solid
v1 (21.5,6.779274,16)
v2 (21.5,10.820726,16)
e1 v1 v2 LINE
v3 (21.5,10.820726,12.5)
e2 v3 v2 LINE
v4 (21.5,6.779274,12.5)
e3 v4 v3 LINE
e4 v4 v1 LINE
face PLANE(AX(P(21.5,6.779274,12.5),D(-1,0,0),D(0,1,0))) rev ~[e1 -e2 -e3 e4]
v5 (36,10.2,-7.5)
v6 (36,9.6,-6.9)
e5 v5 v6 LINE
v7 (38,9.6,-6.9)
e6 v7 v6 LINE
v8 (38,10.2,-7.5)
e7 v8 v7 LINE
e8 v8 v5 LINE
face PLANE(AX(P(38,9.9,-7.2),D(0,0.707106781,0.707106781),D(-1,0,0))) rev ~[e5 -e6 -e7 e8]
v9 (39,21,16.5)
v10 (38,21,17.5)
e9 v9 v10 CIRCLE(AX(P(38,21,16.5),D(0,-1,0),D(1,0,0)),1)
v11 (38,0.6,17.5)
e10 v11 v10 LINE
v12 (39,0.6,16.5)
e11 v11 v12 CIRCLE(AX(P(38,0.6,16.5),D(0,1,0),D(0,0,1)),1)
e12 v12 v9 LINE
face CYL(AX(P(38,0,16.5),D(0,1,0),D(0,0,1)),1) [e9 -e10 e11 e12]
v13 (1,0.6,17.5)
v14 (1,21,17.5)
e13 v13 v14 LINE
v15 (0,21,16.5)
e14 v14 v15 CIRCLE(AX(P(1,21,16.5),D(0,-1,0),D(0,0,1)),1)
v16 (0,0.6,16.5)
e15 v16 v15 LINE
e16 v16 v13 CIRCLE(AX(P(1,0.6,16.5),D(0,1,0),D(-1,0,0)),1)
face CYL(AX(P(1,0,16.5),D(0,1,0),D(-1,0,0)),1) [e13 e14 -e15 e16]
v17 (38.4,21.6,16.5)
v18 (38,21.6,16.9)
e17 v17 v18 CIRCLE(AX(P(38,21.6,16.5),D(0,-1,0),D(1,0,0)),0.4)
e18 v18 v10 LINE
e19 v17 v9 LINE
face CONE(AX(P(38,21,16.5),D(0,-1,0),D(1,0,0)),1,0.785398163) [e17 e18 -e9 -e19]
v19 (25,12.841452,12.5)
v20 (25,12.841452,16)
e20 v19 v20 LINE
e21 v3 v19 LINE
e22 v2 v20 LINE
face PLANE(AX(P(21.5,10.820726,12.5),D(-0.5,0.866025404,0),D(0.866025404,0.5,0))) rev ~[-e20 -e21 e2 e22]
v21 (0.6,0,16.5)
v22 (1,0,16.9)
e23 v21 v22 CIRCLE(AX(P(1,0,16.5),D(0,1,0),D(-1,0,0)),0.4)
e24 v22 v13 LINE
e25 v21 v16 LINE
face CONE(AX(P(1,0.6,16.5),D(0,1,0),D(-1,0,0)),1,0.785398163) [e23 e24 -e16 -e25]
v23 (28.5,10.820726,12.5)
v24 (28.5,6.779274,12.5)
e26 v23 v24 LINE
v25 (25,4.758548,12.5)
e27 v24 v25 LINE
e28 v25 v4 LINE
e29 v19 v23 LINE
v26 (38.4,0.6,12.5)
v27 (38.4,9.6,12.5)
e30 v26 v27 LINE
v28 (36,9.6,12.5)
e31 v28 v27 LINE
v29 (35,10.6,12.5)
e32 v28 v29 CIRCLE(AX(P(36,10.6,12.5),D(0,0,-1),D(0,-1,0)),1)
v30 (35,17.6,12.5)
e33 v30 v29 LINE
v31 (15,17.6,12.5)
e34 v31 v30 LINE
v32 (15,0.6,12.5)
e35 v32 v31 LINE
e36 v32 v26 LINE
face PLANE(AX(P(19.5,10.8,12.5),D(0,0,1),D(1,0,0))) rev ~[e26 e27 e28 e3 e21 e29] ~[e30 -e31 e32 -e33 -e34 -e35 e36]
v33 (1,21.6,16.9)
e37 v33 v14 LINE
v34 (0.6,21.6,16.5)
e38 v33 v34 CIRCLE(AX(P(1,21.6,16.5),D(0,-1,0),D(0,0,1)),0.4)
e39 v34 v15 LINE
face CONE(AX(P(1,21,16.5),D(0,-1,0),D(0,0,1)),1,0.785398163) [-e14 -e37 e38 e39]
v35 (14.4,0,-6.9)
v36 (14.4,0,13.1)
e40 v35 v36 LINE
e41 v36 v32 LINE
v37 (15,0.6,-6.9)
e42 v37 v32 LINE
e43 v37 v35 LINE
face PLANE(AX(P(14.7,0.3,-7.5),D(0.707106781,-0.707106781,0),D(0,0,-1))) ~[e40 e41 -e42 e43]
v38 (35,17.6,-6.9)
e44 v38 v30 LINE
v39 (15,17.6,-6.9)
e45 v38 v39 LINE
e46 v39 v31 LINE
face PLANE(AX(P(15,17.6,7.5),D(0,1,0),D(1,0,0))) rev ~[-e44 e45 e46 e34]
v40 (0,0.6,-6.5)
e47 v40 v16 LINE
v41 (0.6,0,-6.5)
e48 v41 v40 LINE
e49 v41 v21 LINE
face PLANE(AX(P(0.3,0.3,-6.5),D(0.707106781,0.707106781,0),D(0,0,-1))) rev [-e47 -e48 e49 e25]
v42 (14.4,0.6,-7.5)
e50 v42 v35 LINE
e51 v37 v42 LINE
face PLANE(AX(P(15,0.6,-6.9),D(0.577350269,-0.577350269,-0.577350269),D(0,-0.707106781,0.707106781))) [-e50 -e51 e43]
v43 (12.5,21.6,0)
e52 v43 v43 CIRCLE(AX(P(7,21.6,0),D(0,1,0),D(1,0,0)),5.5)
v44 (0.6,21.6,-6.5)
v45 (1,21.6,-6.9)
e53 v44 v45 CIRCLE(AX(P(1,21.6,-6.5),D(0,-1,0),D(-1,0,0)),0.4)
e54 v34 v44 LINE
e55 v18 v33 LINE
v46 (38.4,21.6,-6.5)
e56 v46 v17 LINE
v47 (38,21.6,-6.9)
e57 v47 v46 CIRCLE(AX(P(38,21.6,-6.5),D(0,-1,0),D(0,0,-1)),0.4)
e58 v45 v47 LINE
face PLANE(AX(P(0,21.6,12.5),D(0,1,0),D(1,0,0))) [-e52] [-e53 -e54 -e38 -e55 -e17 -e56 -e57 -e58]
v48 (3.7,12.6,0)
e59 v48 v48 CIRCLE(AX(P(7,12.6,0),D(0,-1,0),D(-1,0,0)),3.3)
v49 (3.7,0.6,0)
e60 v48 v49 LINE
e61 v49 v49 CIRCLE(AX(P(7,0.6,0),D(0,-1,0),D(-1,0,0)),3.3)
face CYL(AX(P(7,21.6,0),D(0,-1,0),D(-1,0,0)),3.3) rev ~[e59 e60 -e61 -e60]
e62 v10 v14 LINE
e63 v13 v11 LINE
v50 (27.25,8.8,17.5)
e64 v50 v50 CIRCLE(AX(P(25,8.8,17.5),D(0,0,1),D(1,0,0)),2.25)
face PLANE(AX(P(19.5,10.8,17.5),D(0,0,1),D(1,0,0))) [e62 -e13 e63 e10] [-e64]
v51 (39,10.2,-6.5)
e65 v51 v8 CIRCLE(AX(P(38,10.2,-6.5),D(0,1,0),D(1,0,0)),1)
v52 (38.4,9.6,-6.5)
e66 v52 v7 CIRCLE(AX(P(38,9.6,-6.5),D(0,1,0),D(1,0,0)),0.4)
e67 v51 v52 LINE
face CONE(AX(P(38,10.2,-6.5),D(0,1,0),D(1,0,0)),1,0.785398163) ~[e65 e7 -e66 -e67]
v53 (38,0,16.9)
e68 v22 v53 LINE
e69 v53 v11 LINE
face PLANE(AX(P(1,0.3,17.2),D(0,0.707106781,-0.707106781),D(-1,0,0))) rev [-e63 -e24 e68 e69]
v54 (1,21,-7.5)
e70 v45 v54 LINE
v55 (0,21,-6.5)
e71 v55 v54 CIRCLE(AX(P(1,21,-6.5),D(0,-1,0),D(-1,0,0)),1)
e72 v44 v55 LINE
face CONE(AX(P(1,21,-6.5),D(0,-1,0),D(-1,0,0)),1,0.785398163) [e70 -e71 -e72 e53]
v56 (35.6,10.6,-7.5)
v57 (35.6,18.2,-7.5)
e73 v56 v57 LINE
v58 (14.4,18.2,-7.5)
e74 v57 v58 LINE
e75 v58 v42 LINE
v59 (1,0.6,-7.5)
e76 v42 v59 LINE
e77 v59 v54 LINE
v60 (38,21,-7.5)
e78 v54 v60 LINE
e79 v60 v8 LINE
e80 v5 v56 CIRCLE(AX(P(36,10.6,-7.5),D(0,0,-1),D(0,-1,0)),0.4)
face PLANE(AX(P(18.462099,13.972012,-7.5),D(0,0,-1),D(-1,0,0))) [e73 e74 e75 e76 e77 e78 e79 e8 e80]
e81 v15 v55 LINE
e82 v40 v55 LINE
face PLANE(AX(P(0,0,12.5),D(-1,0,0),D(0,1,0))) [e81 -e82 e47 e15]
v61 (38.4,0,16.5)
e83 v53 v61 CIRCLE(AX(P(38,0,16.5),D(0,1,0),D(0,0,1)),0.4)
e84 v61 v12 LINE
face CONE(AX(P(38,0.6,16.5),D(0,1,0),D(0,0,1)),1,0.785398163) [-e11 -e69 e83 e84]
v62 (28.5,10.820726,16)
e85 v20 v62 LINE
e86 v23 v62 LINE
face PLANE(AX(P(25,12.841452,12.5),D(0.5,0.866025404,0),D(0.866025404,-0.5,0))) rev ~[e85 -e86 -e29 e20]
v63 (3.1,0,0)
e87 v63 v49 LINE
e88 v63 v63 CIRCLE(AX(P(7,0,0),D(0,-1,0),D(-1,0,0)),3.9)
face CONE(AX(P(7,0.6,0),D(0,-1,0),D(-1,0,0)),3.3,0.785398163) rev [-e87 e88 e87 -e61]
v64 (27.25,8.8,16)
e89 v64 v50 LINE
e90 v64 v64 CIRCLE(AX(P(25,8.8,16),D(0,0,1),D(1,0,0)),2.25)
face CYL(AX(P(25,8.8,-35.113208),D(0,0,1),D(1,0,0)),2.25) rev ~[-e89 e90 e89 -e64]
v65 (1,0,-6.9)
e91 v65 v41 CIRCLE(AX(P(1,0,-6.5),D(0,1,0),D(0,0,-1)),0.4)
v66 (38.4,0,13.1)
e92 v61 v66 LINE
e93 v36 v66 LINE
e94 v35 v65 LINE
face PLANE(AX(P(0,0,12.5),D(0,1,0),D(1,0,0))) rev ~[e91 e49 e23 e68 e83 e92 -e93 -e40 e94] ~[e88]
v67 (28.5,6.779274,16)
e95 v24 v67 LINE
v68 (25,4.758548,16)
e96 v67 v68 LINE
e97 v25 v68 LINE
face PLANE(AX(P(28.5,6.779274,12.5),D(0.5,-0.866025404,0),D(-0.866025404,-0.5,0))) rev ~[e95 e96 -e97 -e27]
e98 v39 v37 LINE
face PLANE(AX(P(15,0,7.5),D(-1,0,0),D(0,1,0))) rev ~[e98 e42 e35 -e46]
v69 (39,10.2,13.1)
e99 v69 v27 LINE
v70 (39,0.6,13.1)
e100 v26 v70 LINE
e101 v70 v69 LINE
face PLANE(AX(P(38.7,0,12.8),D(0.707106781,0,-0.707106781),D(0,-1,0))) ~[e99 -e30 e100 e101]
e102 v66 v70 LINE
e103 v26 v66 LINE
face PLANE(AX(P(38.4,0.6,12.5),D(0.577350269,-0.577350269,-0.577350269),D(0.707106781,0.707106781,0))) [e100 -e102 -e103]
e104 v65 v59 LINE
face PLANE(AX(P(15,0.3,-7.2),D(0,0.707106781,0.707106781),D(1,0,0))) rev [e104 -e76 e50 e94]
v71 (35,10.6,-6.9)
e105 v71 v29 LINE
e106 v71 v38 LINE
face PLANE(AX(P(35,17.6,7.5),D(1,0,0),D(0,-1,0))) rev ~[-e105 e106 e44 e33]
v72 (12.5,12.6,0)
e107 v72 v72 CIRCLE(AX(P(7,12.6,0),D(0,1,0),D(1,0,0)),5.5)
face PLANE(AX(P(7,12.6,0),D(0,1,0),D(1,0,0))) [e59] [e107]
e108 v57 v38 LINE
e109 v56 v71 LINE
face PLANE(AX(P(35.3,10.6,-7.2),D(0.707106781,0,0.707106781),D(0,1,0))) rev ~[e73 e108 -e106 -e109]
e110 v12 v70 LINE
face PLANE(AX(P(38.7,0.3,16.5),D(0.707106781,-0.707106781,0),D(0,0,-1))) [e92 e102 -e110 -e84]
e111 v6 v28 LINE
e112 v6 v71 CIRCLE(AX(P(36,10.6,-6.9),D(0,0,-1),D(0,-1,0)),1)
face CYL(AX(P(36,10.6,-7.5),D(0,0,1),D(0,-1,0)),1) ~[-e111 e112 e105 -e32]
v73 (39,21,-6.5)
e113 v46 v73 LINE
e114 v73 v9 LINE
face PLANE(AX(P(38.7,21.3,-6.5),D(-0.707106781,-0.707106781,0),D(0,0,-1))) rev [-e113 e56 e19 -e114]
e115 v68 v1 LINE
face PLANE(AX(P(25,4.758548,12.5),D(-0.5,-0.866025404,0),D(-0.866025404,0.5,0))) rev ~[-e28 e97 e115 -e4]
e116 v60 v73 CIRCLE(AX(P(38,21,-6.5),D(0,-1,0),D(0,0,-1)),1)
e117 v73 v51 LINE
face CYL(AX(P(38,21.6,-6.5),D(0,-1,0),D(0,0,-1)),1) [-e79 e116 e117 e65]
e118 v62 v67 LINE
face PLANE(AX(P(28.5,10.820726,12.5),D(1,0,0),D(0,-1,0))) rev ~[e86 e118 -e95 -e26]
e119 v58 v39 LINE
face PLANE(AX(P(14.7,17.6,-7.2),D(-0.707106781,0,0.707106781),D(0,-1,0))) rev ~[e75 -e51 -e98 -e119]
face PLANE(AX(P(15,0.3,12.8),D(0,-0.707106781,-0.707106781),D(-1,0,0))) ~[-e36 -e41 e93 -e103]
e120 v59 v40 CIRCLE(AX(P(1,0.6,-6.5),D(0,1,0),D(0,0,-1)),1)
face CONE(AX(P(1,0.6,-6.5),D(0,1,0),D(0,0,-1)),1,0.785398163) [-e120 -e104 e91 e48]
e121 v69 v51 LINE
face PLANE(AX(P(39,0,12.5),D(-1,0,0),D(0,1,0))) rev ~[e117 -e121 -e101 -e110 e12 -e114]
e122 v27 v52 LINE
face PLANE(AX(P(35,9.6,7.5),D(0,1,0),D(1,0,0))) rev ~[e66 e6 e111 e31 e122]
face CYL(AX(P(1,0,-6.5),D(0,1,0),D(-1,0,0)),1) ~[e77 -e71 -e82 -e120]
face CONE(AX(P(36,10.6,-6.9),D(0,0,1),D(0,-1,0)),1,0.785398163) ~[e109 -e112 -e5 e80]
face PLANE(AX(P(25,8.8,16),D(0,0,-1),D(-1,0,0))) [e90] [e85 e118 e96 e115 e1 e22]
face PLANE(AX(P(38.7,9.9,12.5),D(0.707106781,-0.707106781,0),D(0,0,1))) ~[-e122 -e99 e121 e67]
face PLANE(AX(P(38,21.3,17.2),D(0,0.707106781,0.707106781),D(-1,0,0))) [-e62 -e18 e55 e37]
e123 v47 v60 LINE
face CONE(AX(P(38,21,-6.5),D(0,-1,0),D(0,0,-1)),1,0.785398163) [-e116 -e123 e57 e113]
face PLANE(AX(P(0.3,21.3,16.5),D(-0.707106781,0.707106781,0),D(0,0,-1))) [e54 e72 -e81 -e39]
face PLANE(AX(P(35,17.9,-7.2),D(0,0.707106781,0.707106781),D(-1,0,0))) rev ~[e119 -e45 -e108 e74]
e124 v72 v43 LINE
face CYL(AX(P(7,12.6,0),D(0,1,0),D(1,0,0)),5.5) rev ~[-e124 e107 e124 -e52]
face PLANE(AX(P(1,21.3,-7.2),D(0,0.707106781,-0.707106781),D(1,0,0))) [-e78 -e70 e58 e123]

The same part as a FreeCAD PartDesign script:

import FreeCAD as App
import Part
import Sketcher
from FreeCAD import Vector
Q = App.Units.Quantity


def edges_at(feature, points):
    """Names of the edges that pass closest to the given points."""
    edges = feature.Shape.Edges
    near = lambda p: min(range(len(edges)), key=lambda i: edges[i].distToShape(Part.Vertex(*p))[0])
    return sorted({f"Edge{near(p) + 1}" for p in points})

doc = App.newDocument("Part")
params = doc.addObject("Spreadsheet::Sheet", "Params")
for row, (alias, value) in enumerate([
    ("sketch1_width", "15 mm"),
    ("sketch1_width2", "20 mm"),
    ("sketch1_width3", "4 mm"),
    ("sketch1_height", "8 mm"),
    ("sketch1_height2", "12 mm"),
    ("pad1_length", "15 mm"),
    ("sketch2_diameter", "6.6 mm"),
    ("hole_diameter", "6.6 mm"),
    ("hole_cbore_diameter", "11 mm"),
    ("hole_cbore_depth", "9 mm"),
    ("sketch3_width", "15 mm"),
    ("sketch3_width2", "20 mm"),
    ("sketch3_width3", "4 mm"),
    ("sketch3_height", "8 mm"),
    ("sketch3_height2", "12 mm"),
    ("pad2_length", "5 mm"),
    ("sketch4_width", "39 mm"),
    ("sketch4_height", "21.6 mm"),
    ("pad3_length", "5 mm"),
    ("pocket1_length", "3.5 mm"),
    ("sketch6_diameter", "4.5 mm"),
    ("hole2_diameter", "4.5 mm"),
    ("fillet_radius", "1 mm"),
    ("chamfer_size", "0.6 mm"),
], start=1):
    params.set(f"A{row}", alias)
    params.set(f"B{row}", "=" + value)
    params.setAlias(f"B{row}", alias)

body = doc.addObject("PartDesign::Body", "Body")

sketch1 = body.newObject("Sketcher::SketchObject", "Sketch")
sketch1.AttachmentSupport = (doc.getObject("XY_Plane"), [""])
sketch1.MapMode = "FlatFace"
sketch1.addGeometry([
    Part.LineSegment(Vector(0, 21.6, 0), Vector(0, 0, 0)),
    Part.LineSegment(Vector(0, 0, 0), Vector(15, 0, 0)),
    Part.LineSegment(Vector(15, 0, 0), Vector(15, 17.6, 0)),
    Part.LineSegment(Vector(15, 17.6, 0), Vector(35, 17.6, 0)),
    Part.LineSegment(Vector(35, 17.6, 0), Vector(35, 9.6, 0)),
    Part.LineSegment(Vector(35, 9.6, 0), Vector(39, 9.6, 0)),
    Part.LineSegment(Vector(39, 9.6, 0), Vector(39, 21.6, 0)),
    Part.LineSegment(Vector(39, 21.6, 0), Vector(0, 21.6, 0)),
], False)
sketch1.addConstraint([
    Sketcher.Constraint("Coincident", 0, 2, 1, 1),
    Sketcher.Constraint("Coincident", 1, 2, 2, 1),
    Sketcher.Constraint("Coincident", 2, 2, 3, 1),
    Sketcher.Constraint("Coincident", 3, 2, 4, 1),
    Sketcher.Constraint("Coincident", 4, 2, 5, 1),
    Sketcher.Constraint("Coincident", 5, 2, 6, 1),
    Sketcher.Constraint("Coincident", 6, 2, 7, 1),
    Sketcher.Constraint("Coincident", 7, 2, 0, 1),
    Sketcher.Constraint("Vertical", 0),
    Sketcher.Constraint("Horizontal", 1),
    Sketcher.Constraint("Vertical", 2),
    Sketcher.Constraint("Horizontal", 3),
    Sketcher.Constraint("Vertical", 4),
    Sketcher.Constraint("Horizontal", 5),
    Sketcher.Constraint("Vertical", 6),
    Sketcher.Constraint("Horizontal", 7),
    Sketcher.Constraint("Coincident", 0, 2, -1, 1),
    Sketcher.Constraint("DistanceX", 1, 1, 1, 2, Q("15 mm")),
    Sketcher.Constraint("DistanceX", 3, 1, 3, 2, Q("20 mm")),
    Sketcher.Constraint("DistanceX", 5, 1, 5, 2, Q("4 mm")),
    Sketcher.Constraint("DistanceY", 4, 2, 4, 1, Q("8 mm")),
    Sketcher.Constraint("DistanceY", 6, 1, 6, 2, Q("12 mm")),
    Sketcher.Constraint("DistanceY", 0, 2, 0, 1, Q("21.6 mm")),
])
sketch1.setExpression("Constraints[17]", "Params.sketch1_width")
sketch1.setExpression("Constraints[18]", "Params.sketch1_width2")
sketch1.setExpression("Constraints[19]", "Params.sketch1_width3")
sketch1.setExpression("Constraints[20]", "Params.sketch1_height")
sketch1.setExpression("Constraints[21]", "Params.sketch1_height2")
pad1 = body.newObject("PartDesign::Pad", "Pad")
pad1.Profile = sketch1
pad1.setExpression("Length", "Params.pad1_length")
pad1.Midplane = True

sketch2 = body.newObject("Sketcher::SketchObject", "Sketch001")
sketch2.AttachmentSupport = (doc.getObject("XZ_Plane"), [""])
sketch2.MapMode = "FlatFace"
sketch2.AttachmentOffset = App.Placement(Vector(0, 0, -21.6), App.Rotation())
sketch2.addGeometry(Part.Circle(Vector(7, 0, 0), Vector(0, 0, 1), 3.3), False)
sketch2.addConstraint([
    Sketcher.Constraint("PointOnObject", 0, 3, -1),
    Sketcher.Constraint("Diameter", 0, Q("6.6 mm")),
    Sketcher.Constraint("DistanceX", -1, 1, 0, 3, Q("7 mm")),
])
sketch2.setExpression("Constraints[1]", "Params.sketch2_diameter")
doc.recompute()
hole = body.newObject("PartDesign::Hole", "Hole")
hole.Profile = sketch2
hole.ThreadType = "None"
hole.setExpression("Diameter", "Params.hole_diameter")
hole.DepthType = "ThroughAll"
hole.HoleCutType = "Counterbore"
hole.setExpression("HoleCutDiameter", "Params.hole_cbore_diameter")
hole.setExpression("HoleCutDepth", "Params.hole_cbore_depth")
hole.Reversed = True

sketch3 = body.newObject("Sketcher::SketchObject", "Sketch002")
sketch3.AttachmentSupport = (doc.getObject("XY_Plane"), [""])
sketch3.MapMode = "FlatFace"
sketch3.AttachmentOffset = App.Placement(Vector(0, 0, 7.5), App.Rotation())
sketch3.addGeometry([
    Part.LineSegment(Vector(0, 0, 0), Vector(15, 0, 0)),
    Part.LineSegment(Vector(15, 0, 0), Vector(15, 17.6, 0)),
    Part.LineSegment(Vector(15, 17.6, 0), Vector(35, 17.6, 0)),
    Part.LineSegment(Vector(35, 17.6, 0), Vector(35, 9.6, 0)),
    Part.LineSegment(Vector(35, 9.6, 0), Vector(39, 9.6, 0)),
    Part.LineSegment(Vector(39, 9.6, 0), Vector(39, 21.6, 0)),
    Part.LineSegment(Vector(39, 21.6, 0), Vector(0, 21.6, 0)),
    Part.LineSegment(Vector(0, 21.6, 0), Vector(0, 0, 0)),
], False)
sketch3.addConstraint([
    Sketcher.Constraint("Coincident", 0, 2, 1, 1),
    Sketcher.Constraint("Coincident", 1, 2, 2, 1),
    Sketcher.Constraint("Coincident", 2, 2, 3, 1),
    Sketcher.Constraint("Coincident", 3, 2, 4, 1),
    Sketcher.Constraint("Coincident", 4, 2, 5, 1),
    Sketcher.Constraint("Coincident", 5, 2, 6, 1),
    Sketcher.Constraint("Coincident", 6, 2, 7, 1),
    Sketcher.Constraint("Coincident", 7, 2, 0, 1),
    Sketcher.Constraint("Horizontal", 0),
    Sketcher.Constraint("Vertical", 1),
    Sketcher.Constraint("Horizontal", 2),
    Sketcher.Constraint("Vertical", 3),
    Sketcher.Constraint("Horizontal", 4),
    Sketcher.Constraint("Vertical", 5),
    Sketcher.Constraint("Horizontal", 6),
    Sketcher.Constraint("Vertical", 7),
    Sketcher.Constraint("Coincident", 7, 2, -1, 1),
    Sketcher.Constraint("DistanceX", 0, 1, 0, 2, Q("15 mm")),
    Sketcher.Constraint("DistanceX", 2, 1, 2, 2, Q("20 mm")),
    Sketcher.Constraint("DistanceX", 4, 1, 4, 2, Q("4 mm")),
    Sketcher.Constraint("DistanceY", 3, 2, 3, 1, Q("8 mm")),
    Sketcher.Constraint("DistanceY", 5, 1, 5, 2, Q("12 mm")),
    Sketcher.Constraint("DistanceY", 1, 1, 1, 2, Q("17.6 mm")),
])
sketch3.setExpression("Constraints[17]", "Params.sketch3_width")
sketch3.setExpression("Constraints[18]", "Params.sketch3_width2")
sketch3.setExpression("Constraints[19]", "Params.sketch3_width3")
sketch3.setExpression("Constraints[20]", "Params.sketch3_height")
sketch3.setExpression("Constraints[21]", "Params.sketch3_height2")
pad2 = body.newObject("PartDesign::Pad", "Pad001")
pad2.Profile = sketch3
pad2.setExpression("Length", "Params.pad2_length")

sketch4 = body.newObject("Sketcher::SketchObject", "Sketch003")
sketch4.AttachmentSupport = (doc.getObject("XY_Plane"), [""])
sketch4.MapMode = "FlatFace"
sketch4.AttachmentOffset = App.Placement(Vector(0, 0, 12.5), App.Rotation())
sketch4.addGeometry([
    Part.LineSegment(Vector(0, 22, 0), Vector(0, 0, 0)),
    Part.LineSegment(Vector(0, 0, 0), Vector(39, 0, 0)),
    Part.LineSegment(Vector(39, 0, 0), Vector(39, 22, 0)),
    Part.LineSegment(Vector(39, 22, 0), Vector(0, 22, 0)),
], False)
sketch4.addConstraint([
    Sketcher.Constraint("Coincident", 0, 2, 1, 1),
    Sketcher.Constraint("Coincident", 1, 2, 2, 1),
    Sketcher.Constraint("Coincident", 2, 2, 3, 1),
    Sketcher.Constraint("Coincident", 3, 2, 0, 1),
    Sketcher.Constraint("Vertical", 0),
    Sketcher.Constraint("Horizontal", 1),
    Sketcher.Constraint("Vertical", 2),
    Sketcher.Constraint("Horizontal", 3),
    Sketcher.Constraint("Coincident", 0, 2, -1, 1),
    Sketcher.Constraint("DistanceX", 1, 1, 1, 2, Q("39 mm")),
    Sketcher.Constraint("DistanceY", 0, 2, 0, 1, Q("21.6 mm")),
])
sketch4.setExpression("Constraints[9]", "Params.sketch4_width")
sketch4.setExpression("Constraints[10]", "Params.sketch4_height")
pad3 = body.newObject("PartDesign::Pad", "Pad002")
pad3.Profile = sketch4
pad3.setExpression("Length", "Params.pad3_length")

sketch5 = body.newObject("Sketcher::SketchObject", "Sketch004")
sketch5.AttachmentSupport = (doc.getObject("XY_Plane"), [""])
sketch5.MapMode = "FlatFace"
sketch5.AttachmentOffset = App.Placement(Vector(0, 0, 12.5), App.Rotation())
sketch5.addGeometry([
    Part.LineSegment(Vector(25, 4.8, 0), Vector(21.5, 6.8, 0)),
    Part.LineSegment(Vector(21.5, 6.8, 0), Vector(21.5, 10.8, 0)),
    Part.LineSegment(Vector(21.5, 10.8, 0), Vector(25, 12.8, 0)),
    Part.LineSegment(Vector(25, 12.8, 0), Vector(28.5, 10.8, 0)),
    Part.LineSegment(Vector(28.5, 10.8, 0), Vector(28.5, 6.8, 0)),
    Part.LineSegment(Vector(28.5, 6.8, 0), Vector(25, 4.8, 0)),
], False)
sketch5.addConstraint([
    Sketcher.Constraint("Coincident", 0, 2, 1, 1),
    Sketcher.Constraint("Coincident", 1, 2, 2, 1),
    Sketcher.Constraint("Coincident", 2, 2, 3, 1),
    Sketcher.Constraint("Coincident", 3, 2, 4, 1),
    Sketcher.Constraint("Coincident", 4, 2, 5, 1),
    Sketcher.Constraint("Coincident", 5, 2, 0, 1),
    Sketcher.Constraint("Vertical", 1),
    Sketcher.Constraint("Vertical", 4),
    Sketcher.Constraint("Parallel", 0, 3),
    Sketcher.Constraint("Parallel", 2, 5),
    Sketcher.Constraint("Horizontal", 1, 2, 3, 2),
    Sketcher.Constraint("Horizontal", 0, 2, 4, 2),
    Sketcher.Constraint("Vertical", 2, 2, 5, 2),
    Sketcher.Constraint("Angle", 0, Q("150 deg")),
    Sketcher.Constraint("DistanceX", -1, 1, 2, 2, Q("25 mm")),
    Sketcher.Constraint("DistanceX", 1, 2, 3, 2, Q("7 mm")),
    Sketcher.Constraint("DistanceY", 1, 1, 1, 2, Q("4.041452 mm")),
    Sketcher.Constraint("DistanceY", -1, 1, 2, 2, Q("12.841452 mm")),
])
pocket1 = body.newObject("PartDesign::Pocket", "Pocket")
pocket1.Profile = sketch5
pocket1.setExpression("Length", "Params.pocket1_length")
pocket1.Reversed = True

sketch6 = body.newObject("Sketcher::SketchObject", "Sketch005")
sketch6.AttachmentSupport = (doc.getObject("XY_Plane"), [""])
sketch6.MapMode = "FlatFace"
sketch6.AttachmentOffset = App.Placement(Vector(0, 0, 16), App.Rotation())
sketch6.addGeometry(Part.Circle(Vector(25, 8.8, 0), Vector(0, 0, 1), 2.2), False)
sketch6.addConstraint([
    Sketcher.Constraint("Diameter", 0, Q("4.5 mm")),
    Sketcher.Constraint("DistanceX", -1, 1, 0, 3, Q("25 mm")),
    Sketcher.Constraint("DistanceY", -1, 1, 0, 3, Q("8.8 mm")),
])
sketch6.setExpression("Constraints[0]", "Params.sketch6_diameter")
doc.recompute()
hole2 = body.newObject("PartDesign::Hole", "Hole001")
hole2.Profile = sketch6
hole2.ThreadType = "None"
hole2.setExpression("Diameter", "Params.hole2_diameter")
hole2.DepthType = "ThroughAll"
hole2.Reversed = True
doc.recompute()

fillet = body.newObject("PartDesign::Fillet", "Fillet")
fillet.Base = (hole2, edges_at(hole2, [
    (35, 9.6, 2.5),
    (0, 10.8, 17.5),
    (39, 10.8, 17.5),
    (0, 10.8, -7.5),
    (39, 15.6, -7.5),
]))
fillet.setExpression("Radius", "Params.fillet_radius")
doc.recompute()

chamfer = body.newObject("PartDesign::Chamfer", "Chamfer")
chamfer.Base = (fillet, edges_at(fillet, [
    (0.293, 21.6, -7.207),
    (38.707, 21.6, 17.207),
    (35, 14.1, -7.5),
    (38.707, 21.6, -7.207),
    (8, 0, -7.5),
    (37, 9.6, -7.5),
    (35.293, 9.893, -7.5),
    (25, 17.6, -7.5),
    (38.707, 9.6, -7.207),
    (19.5, 0, 17.5),
    (0, 0, 5),
    (15, 8.8, -7.5),
    (0.293, 0, 17.207),
    (0.293, 0, -7.207),
    (38.707, 0, 17.207),
    (39, 9.6, 3),
    (15, 0, 2.5),
    (10.3, 0, 0),
    (27, 0, 12.5),
    (39, 4.8, 12.5),
    (39, 21.6, 5),
    (39, 0, 14.5),
    (19.5, 21.6, -7.5),
    (0, 21.6, 5),
    (19.5, 21.6, 17.5),
    (0.293, 21.6, 17.207),
]))
chamfer.setExpression("Size", "Params.chamfer_size")

doc.recompute()
